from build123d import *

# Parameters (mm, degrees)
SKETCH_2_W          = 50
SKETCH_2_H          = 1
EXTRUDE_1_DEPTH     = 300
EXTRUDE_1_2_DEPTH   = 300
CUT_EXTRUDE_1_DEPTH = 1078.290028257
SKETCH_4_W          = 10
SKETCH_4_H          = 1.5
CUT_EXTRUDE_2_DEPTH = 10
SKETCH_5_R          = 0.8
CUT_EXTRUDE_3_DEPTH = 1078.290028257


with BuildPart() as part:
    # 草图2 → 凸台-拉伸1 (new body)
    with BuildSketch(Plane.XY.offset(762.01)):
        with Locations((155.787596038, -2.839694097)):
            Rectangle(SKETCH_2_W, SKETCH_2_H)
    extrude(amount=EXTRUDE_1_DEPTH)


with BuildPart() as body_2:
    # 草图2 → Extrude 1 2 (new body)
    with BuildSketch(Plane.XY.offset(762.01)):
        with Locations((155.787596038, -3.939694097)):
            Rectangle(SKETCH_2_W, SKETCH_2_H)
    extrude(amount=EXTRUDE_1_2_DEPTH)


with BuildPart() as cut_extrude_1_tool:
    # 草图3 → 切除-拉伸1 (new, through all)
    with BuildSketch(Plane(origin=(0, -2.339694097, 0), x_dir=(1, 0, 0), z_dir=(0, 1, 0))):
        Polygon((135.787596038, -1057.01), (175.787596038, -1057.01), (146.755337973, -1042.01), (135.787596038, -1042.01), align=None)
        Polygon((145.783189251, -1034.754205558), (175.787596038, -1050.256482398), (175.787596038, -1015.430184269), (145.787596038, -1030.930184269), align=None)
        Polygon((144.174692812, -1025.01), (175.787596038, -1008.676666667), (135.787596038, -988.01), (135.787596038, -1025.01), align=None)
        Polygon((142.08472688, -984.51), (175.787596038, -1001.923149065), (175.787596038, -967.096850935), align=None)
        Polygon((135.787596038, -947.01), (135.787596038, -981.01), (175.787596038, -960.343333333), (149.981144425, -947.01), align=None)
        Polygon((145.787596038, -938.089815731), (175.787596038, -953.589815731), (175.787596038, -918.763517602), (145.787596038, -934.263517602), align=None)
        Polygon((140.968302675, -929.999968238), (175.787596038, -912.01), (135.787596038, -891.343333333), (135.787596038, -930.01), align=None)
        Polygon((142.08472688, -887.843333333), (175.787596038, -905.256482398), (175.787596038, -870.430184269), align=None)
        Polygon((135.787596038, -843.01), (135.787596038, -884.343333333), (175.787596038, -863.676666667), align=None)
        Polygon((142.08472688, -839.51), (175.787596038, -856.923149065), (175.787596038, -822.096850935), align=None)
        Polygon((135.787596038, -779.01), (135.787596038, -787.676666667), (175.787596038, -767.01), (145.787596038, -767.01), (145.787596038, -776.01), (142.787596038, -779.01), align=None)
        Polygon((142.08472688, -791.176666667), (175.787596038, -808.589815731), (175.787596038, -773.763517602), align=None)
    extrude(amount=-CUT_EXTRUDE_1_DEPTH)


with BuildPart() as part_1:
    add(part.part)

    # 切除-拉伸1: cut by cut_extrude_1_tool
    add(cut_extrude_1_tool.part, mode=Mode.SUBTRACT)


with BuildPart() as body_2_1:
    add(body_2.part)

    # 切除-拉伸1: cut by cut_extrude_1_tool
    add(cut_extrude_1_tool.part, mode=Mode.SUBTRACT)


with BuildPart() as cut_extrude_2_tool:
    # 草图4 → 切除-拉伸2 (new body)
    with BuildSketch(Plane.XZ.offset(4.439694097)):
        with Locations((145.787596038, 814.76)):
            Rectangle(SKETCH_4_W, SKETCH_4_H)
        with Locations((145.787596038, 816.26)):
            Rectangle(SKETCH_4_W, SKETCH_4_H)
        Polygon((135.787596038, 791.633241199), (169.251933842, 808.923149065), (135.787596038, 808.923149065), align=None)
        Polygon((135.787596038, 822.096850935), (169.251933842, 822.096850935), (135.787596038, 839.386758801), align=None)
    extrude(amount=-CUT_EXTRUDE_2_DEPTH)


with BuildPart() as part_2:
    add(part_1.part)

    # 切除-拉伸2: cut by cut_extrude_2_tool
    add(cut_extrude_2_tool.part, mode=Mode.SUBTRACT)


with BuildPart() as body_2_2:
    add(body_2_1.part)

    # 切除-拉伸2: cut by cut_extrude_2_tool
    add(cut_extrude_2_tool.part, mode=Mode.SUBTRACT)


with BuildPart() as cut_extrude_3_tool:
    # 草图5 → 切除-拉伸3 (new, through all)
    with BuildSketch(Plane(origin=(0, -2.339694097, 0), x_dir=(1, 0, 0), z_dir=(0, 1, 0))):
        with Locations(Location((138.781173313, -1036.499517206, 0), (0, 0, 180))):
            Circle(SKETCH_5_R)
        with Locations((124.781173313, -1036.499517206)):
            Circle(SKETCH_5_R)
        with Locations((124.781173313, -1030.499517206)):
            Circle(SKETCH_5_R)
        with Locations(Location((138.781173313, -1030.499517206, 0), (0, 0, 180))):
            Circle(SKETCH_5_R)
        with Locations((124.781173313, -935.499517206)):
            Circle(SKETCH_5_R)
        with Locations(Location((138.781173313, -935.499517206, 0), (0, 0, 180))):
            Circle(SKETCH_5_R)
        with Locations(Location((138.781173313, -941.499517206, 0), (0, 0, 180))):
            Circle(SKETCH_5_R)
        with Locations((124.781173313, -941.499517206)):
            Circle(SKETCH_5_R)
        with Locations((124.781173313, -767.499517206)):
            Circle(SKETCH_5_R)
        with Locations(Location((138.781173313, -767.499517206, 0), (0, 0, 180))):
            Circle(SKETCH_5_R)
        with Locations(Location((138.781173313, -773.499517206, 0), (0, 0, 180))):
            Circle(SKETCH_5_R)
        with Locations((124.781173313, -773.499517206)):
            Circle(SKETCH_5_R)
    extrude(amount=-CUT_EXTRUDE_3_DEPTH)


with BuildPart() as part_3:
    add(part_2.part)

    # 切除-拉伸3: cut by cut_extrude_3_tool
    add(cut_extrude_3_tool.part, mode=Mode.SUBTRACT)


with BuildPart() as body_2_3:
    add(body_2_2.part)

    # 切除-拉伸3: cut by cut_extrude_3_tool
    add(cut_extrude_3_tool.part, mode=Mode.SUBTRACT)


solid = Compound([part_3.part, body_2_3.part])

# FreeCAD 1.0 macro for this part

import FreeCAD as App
import Part
import Sketcher

V = App.Vector
Q = App.Units.Quantity

doc = App.newDocument("Part")
body = doc.addObject("PartDesign::Body", "Body")

# Sketch on XY plane
sketch1 = body.newObject("Sketcher::SketchObject", "Sketch")
sketch1.AttachmentSupport = (doc.getObject("XY_Plane"), [""])
sketch1.MapMode = "FlatFace"
sketch1.AttachmentOffset = App.Placement(V(0, 0, 762.01), App.Rotation())
sketch1.addGeometry([
    Part.LineSegment(V(130.8, -2.3, 0), V(130.8, -3.3, 0)),
    Part.LineSegment(V(130.8, -3.3, 0), V(180.8, -3.3, 0)),
    Part.LineSegment(V(180.8, -3.3, 0), V(180.8, -2.3, 0)),
    Part.LineSegment(V(180.8, -2.3, 0), V(130.8, -2.3, 0)),
], False)
sketch1.addConstraint([
    Sketcher.Constraint("Coincident", 0, 2, 1, 1),
    Sketcher.Constraint("Coincident", 1, 2, 2, 1),
    Sketcher.Constraint("Coincident", 2, 2, 3, 1),
    Sketcher.Constraint("Coincident", 3, 2, 0, 1),
    Sketcher.Constraint("Vertical", 0),
    Sketcher.Constraint("Horizontal", 1),
    Sketcher.Constraint("Vertical", 2),
    Sketcher.Constraint("Horizontal", 3),
    Sketcher.Constraint("DistanceX", 1, 1, 1, 2, 50.0),
    Sketcher.Constraint("DistanceY", 0, 2, 0, 1, 1.0),
    Sketcher.Constraint("DistanceX", -1, 1, 0, 2, 130.787596),
    Sketcher.Constraint("DistanceY", 0, 2, -1, 1, 3.339694),
])
pad1 = body.newObject("PartDesign::Pad", "Pad")
pad1.Profile = sketch1
pad1.Length = 300
body2 = doc.addObject("PartDesign::Body", "Body001")

# Sketch on XY plane
sketch2 = body2.newObject("Sketcher::SketchObject", "Sketch001")
sketch2.AttachmentSupport = (doc.getObject("XY_Plane001"), [""])
sketch2.MapMode = "FlatFace"
sketch2.AttachmentOffset = App.Placement(V(0, 0, 762.01), App.Rotation())
sketch2.addGeometry([
    Part.LineSegment(V(130.8, -3.4, 0), V(130.8, -4.4, 0)),
    Part.LineSegment(V(130.8, -4.4, 0), V(180.8, -4.4, 0)),
    Part.LineSegment(V(180.8, -4.4, 0), V(180.8, -3.4, 0)),
    Part.LineSegment(V(180.8, -3.4, 0), V(130.8, -3.4, 0)),
], False)
sketch2.addConstraint([
    Sketcher.Constraint("Coincident", 0, 2, 1, 1),
    Sketcher.Constraint("Coincident", 1, 2, 2, 1),
    Sketcher.Constraint("Coincident", 2, 2, 3, 1),
    Sketcher.Constraint("Coincident", 3, 2, 0, 1),
    Sketcher.Constraint("Vertical", 0),
    Sketcher.Constraint("Horizontal", 1),
    Sketcher.Constraint("Vertical", 2),
    Sketcher.Constraint("Horizontal", 3),
    Sketcher.Constraint("DistanceX", 1, 1, 1, 2, 50.0),
    Sketcher.Constraint("DistanceY", 0, 2, 0, 1, 1.0),
    Sketcher.Constraint("DistanceX", -1, 1, 0, 2, 130.787596),
    Sketcher.Constraint("DistanceY", 0, 2, -1, 1, 4.439694),
])
pad2 = body2.newObject("PartDesign::Pad", "Pad001")
pad2.Profile = sketch2
pad2.Length = 300
body3 = doc.addObject("PartDesign::Body", "Body002")
body3.AllowCompound = True

# Sketch on XZ plane
sketch3 = body3.newObject("Sketcher::SketchObject", "Sketch002")
sketch3.AttachmentSupport = (doc.getObject("XZ_Plane002"), [""])
sketch3.MapMode = "FlatFace"
sketch3.AttachmentOffset = App.Placement(V(0, 0, 2.339694), App.Rotation())
sketch3.addGeometry([
    Part.LineSegment(V(135.8, 1057, 0), V(175.8, 1057, 0)),  # 0
    Part.LineSegment(V(175.8, 1057, 0), V(146.8, 1042, 0)),  # 1
    Part.LineSegment(V(146.8, 1042, 0), V(135.8, 1042, 0)),  # 2
    Part.LineSegment(V(135.8, 1042, 0), V(135.8, 1057, 0)),  # 3
    Part.LineSegment(V(145.8, 1034.8, 0), V(175.8, 1050.3, 0)),  # 4
    Part.LineSegment(V(175.8, 1050.3, 0), V(175.8, 1015.4, 0)),  # 5
    Part.LineSegment(V(175.8, 1015.4, 0), V(145.8, 1030.9, 0)),  # 6
    Part.LineSegment(V(145.8, 1030.9, 0), V(145.8, 1034.8, 0)),  # 7
    Part.LineSegment(V(144.2, 1025, 0), V(175.8, 1008.7, 0)),  # 8
    Part.LineSegment(V(175.8, 1008.7, 0), V(135.8, 988, 0)),  # 9
    Part.LineSegment(V(135.8, 988, 0), V(135.8, 1025, 0)),  # 10
    Part.LineSegment(V(135.8, 1025, 0), V(144.2, 1025, 0)),  # 11
    Part.LineSegment(V(142.1, 984.5, 0), V(175.8, 1001.9, 0)),  # 12
    Part.LineSegment(V(175.8, 1001.9, 0), V(175.8, 967.1, 0)),  # 13
    Part.LineSegment(V(175.8, 967.1, 0), V(142.1, 984.5, 0)),  # 14
    Part.LineSegment(V(135.8, 947, 0), V(135.8, 981, 0)),  # 15
    Part.LineSegment(V(135.8, 981, 0), V(175.8, 960.3, 0)),  # 16
    Part.LineSegment(V(175.8, 960.3, 0), V(150, 947, 0)),  # 17
    Part.LineSegment(V(150, 947, 0), V(135.8, 947, 0)),  # 18
    Part.LineSegment(V(145.8, 938.1, 0), V(175.8, 953.6, 0)),  # 19
    Part.LineSegment(V(175.8, 953.6, 0), V(175.8, 918.8, 0)),  # 20
    Part.LineSegment(V(175.8, 918.8, 0), V(145.8, 934.3, 0)),  # 21
    Part.LineSegment(V(145.8, 934.3, 0), V(145.8, 938.1, 0)),  # 22
    Part.LineSegment(V(141, 930, 0), V(175.8, 912, 0)),  # 23
    Part.LineSegment(V(175.8, 912, 0), V(135.8, 891.3, 0)),  # 24
    Part.LineSegment(V(135.8, 891.3, 0), V(135.8, 930, 0)),  # 25
    Part.LineSegment(V(135.8, 930, 0), V(141, 930, 0)),  # 26
    Part.LineSegment(V(142.1, 887.8, 0), V(175.8, 905.3, 0)),  # 27
    Part.LineSegment(V(175.8, 905.3, 0), V(175.8, 870.4, 0)),  # 28
    Part.LineSegment(V(175.8, 870.4, 0), V(142.1, 887.8, 0)),  # 29
    Part.LineSegment(V(135.8, 843, 0), V(135.8, 884.3, 0)),  # 30
    Part.LineSegment(V(135.8, 884.3, 0), V(175.8, 863.7, 0)),  # 31
    Part.LineSegment(V(175.8, 863.7, 0), V(135.8, 843, 0)),  # 32
    Part.LineSegment(V(142.1, 839.5, 0), V(175.8, 856.9, 0)),  # 33
    Part.LineSegment(V(175.8, 856.9, 0), V(175.8, 822.1, 0)),  # 34
    Part.LineSegment(V(175.8, 822.1, 0), V(142.1, 839.5, 0)),  # 35
    Part.LineSegment(V(135.8, 779, 0), V(135.8, 787.7, 0)),  # 36
    Part.LineSegment(V(135.8, 787.7, 0), V(175.8, 767, 0)),  # 37
    Part.LineSegment(V(175.8, 767, 0), V(145.8, 767, 0)),  # 38
    Part.LineSegment(V(145.8, 767, 0), V(145.8, 776, 0)),  # 39
    Part.LineSegment(V(145.8, 776, 0), V(142.8, 779, 0)),  # 40
    Part.LineSegment(V(142.8, 779, 0), V(135.8, 779, 0)),  # 41
    Part.LineSegment(V(142.1, 791.2, 0), V(175.8, 808.6, 0)),  # 42
    Part.LineSegment(V(175.8, 808.6, 0), V(175.8, 773.8, 0)),  # 43
    Part.LineSegment(V(175.8, 773.8, 0), V(142.1, 791.2, 0)),  # 44
], False)
sketch3.addConstraint([
    Sketcher.Constraint("Coincident", 0, 2, 1, 1),
    Sketcher.Constraint("Coincident", 1, 2, 2, 1),
    Sketcher.Constraint("Coincident", 2, 2, 3, 1),
    Sketcher.Constraint("Coincident", 3, 2, 0, 1),
    Sketcher.Constraint("Coincident", 4, 2, 5, 1),
    Sketcher.Constraint("Coincident", 5, 2, 6, 1),
    Sketcher.Constraint("Coincident", 6, 2, 7, 1),
    Sketcher.Constraint("Coincident", 7, 2, 4, 1),
    Sketcher.Constraint("Coincident", 8, 2, 9, 1),
    Sketcher.Constraint("Coincident", 9, 2, 10, 1),
    Sketcher.Constraint("Coincident", 10, 2, 11, 1),
    Sketcher.Constraint("Coincident", 11, 2, 8, 1),
    Sketcher.Constraint("Coincident", 12, 2, 13, 1),
    Sketcher.Constraint("Coincident", 13, 2, 14, 1),
    Sketcher.Constraint("Coincident", 14, 2, 12, 1),
    Sketcher.Constraint("Coincident", 15, 2, 16, 1),
    Sketcher.Constraint("Coincident", 16, 2, 17, 1),
    Sketcher.Constraint("Coincident", 17, 2, 18, 1),
    Sketcher.Constraint("Coincident", 18, 2, 15, 1),
    Sketcher.Constraint("Coincident", 19, 2, 20, 1),
    Sketcher.Constraint("Coincident", 20, 2, 21, 1),
    Sketcher.Constraint("Coincident", 21, 2, 22, 1),
    Sketcher.Constraint("Coincident", 22, 2, 19, 1),
    Sketcher.Constraint("Coincident", 23, 2, 24, 1),
    Sketcher.Constraint("Coincident", 24, 2, 25, 1),
    Sketcher.Constraint("Coincident", 25, 2, 26, 1),
    Sketcher.Constraint("Coincident", 26, 2, 23, 1),
    Sketcher.Constraint("Coincident", 27, 2, 28, 1),
    Sketcher.Constraint("Coincident", 28, 2, 29, 1),
    Sketcher.Constraint("Coincident", 29, 2, 27, 1),
    Sketcher.Constraint("Coincident", 30, 2, 31, 1),
    Sketcher.Constraint("Coincident", 31, 2, 32, 1),
    Sketcher.Constraint("Coincident", 32, 2, 30, 1),
    Sketcher.Constraint("Coincident", 33, 2, 34, 1),
    Sketcher.Constraint("Coincident", 34, 2, 35, 1),
    Sketcher.Constraint("Coincident", 35, 2, 33, 1),
    Sketcher.Constraint("Coincident", 36, 2, 37, 1),
    Sketcher.Constraint("Coincident", 37, 2, 38, 1),
    Sketcher.Constraint("Coincident", 38, 2, 39, 1),
    Sketcher.Constraint("Coincident", 39, 2, 40, 1),
    Sketcher.Constraint("Coincident", 40, 2, 41, 1),
    Sketcher.Constraint("Coincident", 41, 2, 36, 1),
    Sketcher.Constraint("Coincident", 42, 2, 43, 1),
    Sketcher.Constraint("Coincident", 43, 2, 44, 1),
    Sketcher.Constraint("Coincident", 44, 2, 42, 1),
    Sketcher.Constraint("Horizontal", 0),
    Sketcher.Constraint("Horizontal", 2),
    Sketcher.Constraint("Vertical", 3),
    Sketcher.Constraint("Vertical", 5),
    Sketcher.Constraint("Vertical", 10),
    Sketcher.Constraint("Horizontal", 11),
    Sketcher.Constraint("Vertical", 13),
    Sketcher.Constraint("Vertical", 15),
    Sketcher.Constraint("Horizontal", 18),
    Sketcher.Constraint("Vertical", 20),
    Sketcher.Constraint("Vertical", 22),
    Sketcher.Constraint("Vertical", 25),
    Sketcher.Constraint("Vertical", 28),
    Sketcher.Constraint("Vertical", 30),
    Sketcher.Constraint("Vertical", 34),
    Sketcher.Constraint("Vertical", 36),
    Sketcher.Constraint("Horizontal", 38),
    Sketcher.Constraint("Vertical", 39),
    Sketcher.Constraint("Horizontal", 41),
    Sketcher.Constraint("Vertical", 43),
    Sketcher.Constraint("Parallel", 1, 4),
    Sketcher.Constraint("Parallel", 6, 8),
    Sketcher.Constraint("Parallel", 4, 9),
    Sketcher.Constraint("Parallel", 9, 12),
    Sketcher.Constraint("Parallel", 8, 14),
    Sketcher.Constraint("Parallel", 14, 16),
    Sketcher.Constraint("Parallel", 12, 17),
    Sketcher.Constraint("Parallel", 17, 19),
    Sketcher.Constraint("Parallel", 16, 21),
    Sketcher.Constraint("Parallel", 21, 23),
    Sketcher.Constraint("Parallel", 19, 24),
    Sketcher.Constraint("Parallel", 24, 27),
    Sketcher.Constraint("Parallel", 23, 29),
    Sketcher.Constraint("Parallel", 29, 31),
    Sketcher.Constraint("Parallel", 27, 32),
    Sketcher.Constraint("Parallel", 32, 33),
    Sketcher.Constraint("Parallel", 31, 35),
    Sketcher.Constraint("Parallel", 35, 37),
    Sketcher.Constraint("Parallel", 33, 42),
    Sketcher.Constraint("Parallel", 37, 44),
    Sketcher.Constraint("Vertical", 0, 2, 4, 2),
    Sketcher.Constraint("Vertical", 5, 2, 8, 2),
    Sketcher.Constraint("Vertical", 3, 2, 9, 2),
    Sketcher.Constraint("Vertical", 8, 2, 12, 2),
    Sketcher.Constraint("Vertical", 10, 2, 15, 2),
    Sketcher.Constraint("Vertical", 13, 2, 16, 2),
    Sketcher.Constraint("Vertical", 16, 2, 19, 2),
    Sketcher.Constraint("Vertical", 6, 2, 21, 2),
    Sketcher.Constraint("Vertical", 20, 2, 23, 2),
    Sketcher.Constraint("Vertical", 18, 2, 24, 2),
    Sketcher.Constraint("Vertical", 23, 2, 27, 2),
    Sketcher.Constraint("Vertical", 14, 2, 29, 2),
    Sketcher.Constraint("Vertical", 25, 2, 30, 2),
    Sketcher.Constraint("Vertical", 28, 2, 31, 2),
    Sketcher.Constraint("Vertical", 31, 2, 33, 2),
    Sketcher.Constraint("Vertical", 29, 2, 35, 2),
    Sketcher.Constraint("Vertical", 32, 2, 36, 2),
    Sketcher.Constraint("Vertical", 34, 2, 37, 2),
    Sketcher.Constraint("Vertical", 22, 2, 38, 2),
    Sketcher.Constraint("Vertical", 37, 2, 42, 2),
    Sketcher.Constraint("Vertical", 35, 2, 44, 2),
    Sketcher.Constraint("Equal", 5, 13),
    Sketcher.Constraint("Equal", 13, 20),
    Sketcher.Constraint("Equal", 12, 14),
    Sketcher.Constraint("DistanceX", 0, 1, 0, 2, 40.0),
    Sketcher.Constraint("DistanceX", 38, 2, 38, 1, 30.0),
    Sketcher.Constraint("DistanceX", 41, 2, 41, 1, 7.0),
    Sketcher.Constraint("DistanceY", 3, 1, 3, 2, 15.0),
    Sketcher.Constraint("DistanceY", 10, 1, 10, 2, 37.0),
    Sketcher.Constraint("DistanceY", 15, 1, 15, 2, 34.0),
    Sketcher.Constraint("DistanceY", 39, 1, 39, 2, 9.0),
    Sketcher.Constraint("Angle", 40, Q("135 deg")),
    Sketcher.Constraint("DistanceY", 9, 2, 2, 2, 54.0),
    Sketcher.Constraint("DistanceY", 15, 2, 9, 2, 7.0),
    Sketcher.Constraint("DistanceY", 23, 2, 17, 2, 35.0),
    Sketcher.Constraint("DistanceY", 25, 2, 18, 2, 17.0),
    Sketcher.Constraint("DistanceY", 30, 2, 24, 2, 7.0),
    Sketcher.Constraint("DistanceY", 36, 2, 31, 2, 76.0),
    Sketcher.Constraint("DistanceY", 5, 2, 6, 2, 15.5),
    Sketcher.Constraint("DistanceY", 14, 2, 9, 2, 3.5),
    Sketcher.Constraint("DistanceY", 29, 2, 24, 2, 3.5),
    Sketcher.Constraint("DistanceY", 35, 2, 32, 2, 3.5),
    Sketcher.Constraint("DistanceY", 36, 2, 44, 2, 3.5),
    Sketcher.Constraint("DistanceY", -1, 1, 0, 2, 1057.01),
    Sketcher.Constraint("DistanceY", 5, 2, 5, 1, 34.826298),
    Sketcher.Constraint("Distance", 4, 33.772548),
    Sketcher.Constraint("Distance", 23, 39.192118),
    Sketcher.Constraint("DistanceX", -1, 1, 7, 2, 145.783189),
    Sketcher.Constraint("DistanceY", 8, 2, 7, 2, 26.077539),
    Sketcher.Constraint("DistanceY", 26, 2, 21, 2, 4.263549),
])
pad3 = body3.newObject("PartDesign::Pad", "Pad002")
pad3.Profile = sketch3
pad3.Length = 1078.290028
doc.recompute()

body4 = doc.addObject("PartDesign::Body", "Body003")
body4.BaseFeature = body3
boolean = body.newObject("PartDesign::Boolean", "Boolean")
boolean.Type = "Cut"
boolean.addObjects([body4])
doc.recompute()

boolean2 = body2.newObject("PartDesign::Boolean", "Boolean001")
boolean2.Type = "Cut"
boolean2.addObjects([body3])
body5 = doc.addObject("PartDesign::Body", "Body004")
body5.AllowCompound = True

# Sketch on XZ plane
sketch4 = body5.newObject("Sketcher::SketchObject", "Sketch003")
sketch4.AttachmentSupport = (doc.getObject("XZ_Plane004"), [""])
sketch4.MapMode = "FlatFace"
sketch4.AttachmentOffset = App.Placement(V(0, 0, 4.439694), App.Rotation())
sketch4.addGeometry([
    Part.LineSegment(V(140.8, 814, 0), V(150.8, 814, 0)),  # 0
    Part.LineSegment(V(150.8, 814, 0), V(150.8, 817, 0)),  # 1
    Part.LineSegment(V(150.8, 817, 0), V(140.8, 817, 0)),  # 2
    Part.LineSegment(V(140.8, 817, 0), V(140.8, 814, 0)),  # 3
    Part.LineSegment(V(135.8, 791.6, 0), V(169.3, 808.9, 0)),  # 4
    Part.LineSegment(V(169.3, 808.9, 0), V(135.8, 808.9, 0)),  # 5
    Part.LineSegment(V(135.8, 808.9, 0), V(135.8, 791.6, 0)),  # 6
    Part.LineSegment(V(135.8, 822.1, 0), V(169.3, 822.1, 0)),  # 7
    Part.LineSegment(V(169.3, 822.1, 0), V(135.8, 839.4, 0)),  # 8
    Part.LineSegment(V(135.8, 839.4, 0), V(135.8, 822.1, 0)),  # 9
], False)
sketch4.addConstraint([
    Sketcher.Constraint("Coincident", 0, 2, 1, 1),
    Sketcher.Constraint("Coincident", 1, 2, 2, 1),
    Sketcher.Constraint("Coincident", 2, 2, 3, 1),
    Sketcher.Constraint("Coincident", 3, 2, 0, 1),
    Sketcher.Constraint("Coincident", 4, 2, 5, 1),
    Sketcher.Constraint("Coincident", 5, 2, 6, 1),
    Sketcher.Constraint("Coincident", 6, 2, 4, 1),
    Sketcher.Constraint("Coincident", 7, 2, 8, 1),
    Sketcher.Constraint("Coincident", 8, 2, 9, 1),
    Sketcher.Constraint("Coincident", 9, 2, 7, 1),
    Sketcher.Constraint("Horizontal", 0),
    Sketcher.Constraint("Vertical", 1),
    Sketcher.Constraint("Horizontal", 2),
    Sketcher.Constraint("Vertical", 3),
    Sketcher.Constraint("Horizontal", 5),
    Sketcher.Constraint("Vertical", 6),
    Sketcher.Constraint("Horizontal", 7),
    Sketcher.Constraint("Vertical", 9),
    Sketcher.Constraint("Vertical", 4, 2, 7, 2),
    Sketcher.Constraint("Vertical", 6, 2, 8, 2),
    Sketcher.Constraint("Equal", 6, 9),
    Sketcher.Constraint("DistanceX", 0, 1, 0, 2, 10.0),
    Sketcher.Constraint("DistanceY", 1, 1, 1, 2, 3.0),
    Sketcher.Constraint("DistanceX", 5, 2, 3, 2, 5.0),
    Sketcher.Constraint("DistanceY", -1, 1, 0, 2, 814.01),
    Sketcher.Constraint("Distance", 4, 37.666999),
    Sketcher.Constraint("DistanceY", 4, 2, 7, 2, 13.173702),
    Sketcher.Constraint("DistanceX", 5, 2, 5, 1, 33.464338),
    Sketcher.Constraint("DistanceY", -1, 1, 4, 2, 808.923149),
    Sketcher.Constraint("DistanceX", -1, 1, 0, 2, 150.787596),
])
pad4 = body5.newObject("PartDesign::Pad", "Pad003")
pad4.Profile = sketch4
pad4.Length = 10
pad4.Reversed = True
doc.recompute()

body6 = doc.addObject("PartDesign::Body", "Body005")
body6.BaseFeature = body5
boolean3 = body.newObject("PartDesign::Boolean", "Boolean002")
boolean3.Type = "Cut"
boolean3.addObjects([body6])
doc.recompute()

boolean4 = body2.newObject("PartDesign::Boolean", "Boolean003")
boolean4.Type = "Cut"
boolean4.addObjects([body5])
body7 = doc.addObject("PartDesign::Body", "Body006")
body7.AllowCompound = True

# Sketch on XZ plane
sketch5 = body7.newObject("Sketcher::SketchObject", "Sketch004")
sketch5.AttachmentSupport = (doc.getObject("XZ_Plane006"), [""])
sketch5.MapMode = "FlatFace"
sketch5.AttachmentOffset = App.Placement(V(0, 0, 2.339694), App.Rotation())
sketch5.addGeometry([
    Part.Circle(V(138.8, 1036.5, 0), V(0, 0, 1), 0.8),  # 0
    Part.Circle(V(124.8, 1036.5, 0), V(0, 0, 1), 0.8),  # 1
    Part.Circle(V(124.8, 1030.5, 0), V(0, 0, 1), 0.8),  # 2
    Part.Circle(V(138.8, 1030.5, 0), V(0, 0, 1), 0.8),  # 3
    Part.Circle(V(124.8, 935.5, 0), V(0, 0, 1), 0.8),  # 4
    Part.Circle(V(138.8, 935.5, 0), V(0, 0, 1), 0.8),  # 5
    Part.Circle(V(138.8, 941.5, 0), V(0, 0, 1), 0.8),  # 6
    Part.Circle(V(124.8, 941.5, 0), V(0, 0, 1), 0.8),  # 7
    Part.Circle(V(124.8, 767.5, 0), V(0, 0, 1), 0.8),  # 8
    Part.Circle(V(138.8, 767.5, 0), V(0, 0, 1), 0.8),  # 9
    Part.Circle(V(138.8, 773.5, 0), V(0, 0, 1), 0.8),  # 10
    Part.Circle(V(124.8, 773.5, 0), V(0, 0, 1), 0.8),  # 11
], False)
sketch5.addConstraint([
    Sketcher.Constraint("Equal", 0, 1),
    Sketcher.Constraint("Equal", 1, 2),
    Sketcher.Constraint("Equal", 2, 3),
    Sketcher.Constraint("Equal", 3, 4),
    Sketcher.Constraint("Equal", 4, 5),
    Sketcher.Constraint("Equal", 5, 6),
    Sketcher.Constraint("Equal", 6, 7),
    Sketcher.Constraint("Equal", 7, 8),
    Sketcher.Constraint("Equal", 8, 9),
    Sketcher.Constraint("Equal", 9, 10),
    Sketcher.Constraint("Equal", 10, 11),
    Sketcher.Constraint("Horizontal", 0, 3, 1, 3),
    Sketcher.Constraint("Horizontal", 2, 3, 3, 3),
    Sketcher.Constraint("Horizontal", 4, 3, 5, 3),
    Sketcher.Constraint("Horizontal", 6, 3, 7, 3),
    Sketcher.Constraint("Horizontal", 8, 3, 9, 3),
    Sketcher.Constraint("Horizontal", 10, 3, 11, 3),
    Sketcher.Constraint("Vertical", 1, 3, 2, 3),
    Sketcher.Constraint("Vertical", 0, 3, 3, 3),
    Sketcher.Constraint("Vertical", 2, 3, 4, 3),
    Sketcher.Constraint("Vertical", 3, 3, 5, 3),
    Sketcher.Constraint("Vertical", 5, 3, 6, 3),
    Sketcher.Constraint("Vertical", 4, 3, 7, 3),
    Sketcher.Constraint("Vertical", 7, 3, 8, 3),
    Sketcher.Constraint("Vertical", 6, 3, 9, 3),
    Sketcher.Constraint("Vertical", 9, 3, 10, 3),
    Sketcher.Constraint("Vertical", 8, 3, 11, 3),
    Sketcher.Constraint("Diameter", 0, 1.6),
    Sketcher.Constraint("DistanceX", 1, 3, 0, 3, 14.0),
    Sketcher.Constraint("DistanceY", 2, 3, 1, 3, 6.0),
    Sketcher.Constraint("DistanceY", 4, 3, 2, 3, 95.0),
    Sketcher.Constraint("DistanceY", 5, 3, 6, 3, 6.0),
    Sketcher.Constraint("DistanceY", 8, 3, 4, 3, 168.0),
    Sketcher.Constraint("DistanceY", 9, 3, 10, 3, 6.0),
    Sketcher.Constraint("DistanceX", -1, 1, 0, 3, 138.781173),
    Sketcher.Constraint("DistanceY", -1, 1, 0, 3, 1036.499517),
])
pad5 = body7.newObject("PartDesign::Pad", "Pad004")
pad5.Profile = sketch5
pad5.Length = 1078.290028
doc.recompute()

body8 = doc.addObject("PartDesign::Body", "Body007")
body8.BaseFeature = body7
boolean5 = body.newObject("PartDesign::Boolean", "Boolean004")
boolean5.Type = "Cut"
boolean5.addObjects([body8])
doc.recompute()

boolean6 = body2.newObject("PartDesign::Boolean", "Boolean005")
boolean6.Type = "Cut"
boolean6.addObjects([body7])

doc.recompute()
